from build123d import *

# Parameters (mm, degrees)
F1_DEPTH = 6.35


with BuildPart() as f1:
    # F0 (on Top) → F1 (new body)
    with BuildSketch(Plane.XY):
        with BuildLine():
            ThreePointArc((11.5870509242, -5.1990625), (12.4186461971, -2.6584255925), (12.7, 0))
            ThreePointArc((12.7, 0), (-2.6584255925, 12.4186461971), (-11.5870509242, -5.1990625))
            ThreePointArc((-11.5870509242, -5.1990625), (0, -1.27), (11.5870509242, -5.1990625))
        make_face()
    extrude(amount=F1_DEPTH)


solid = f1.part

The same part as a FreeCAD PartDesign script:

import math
import FreeCAD as App
import Part
import Sketcher
from FreeCAD import Vector
Q = App.Units.Quantity

doc = App.newDocument("Part")
params = doc.addObject("Spreadsheet::Sheet", "Params")
for row, (alias, value) in enumerate([
    ("sketch1_radius", "0.5 in"),
    ("sketch1_radius2", "0.75 in"),
    ("pad1_length", "0.25 in"),
], start=1):
    params.set(f"A{row}", alias)
    params.set(f"B{row}", "=" + value)
    params.setAlias(f"B{row}", alias)

body = doc.addObject("PartDesign::Body", "Body")

sketch1 = body.newObject("Sketcher::SketchObject", "Sketch")
sketch1.AttachmentSupport = (doc.getObject("XY_Plane"), [""])
sketch1.MapMode = "FlatFace"
sketch1.addGeometry(Part.ArcOfCircle(Part.Circle(Vector(0, 0, 0), Vector(0, 0, 1), 13), math.radians(-24), math.radians(0)), False)
sketch1.addGeometry(Part.ArcOfCircle(Part.Circle(Vector(0, 0, 0), Vector(0, 0, 1), 13), math.radians(0), math.radians(204)), False)
sketch1.addGeometry(Part.ArcOfCircle(Part.Circle(Vector(0, -20, 0), Vector(0, 0, 1), 19), math.radians(53), math.radians(127)), False)
sketch1.addConstraint(Sketcher.Constraint("Tangent", 0, 2, 1, 1))
sketch1.addConstraint(Sketcher.Constraint("Coincident", 1, 2, 2, 2))
sketch1.addConstraint(Sketcher.Constraint("Coincident", 2, 1, 0, 1))
sketch1.addConstraint(Sketcher.Constraint("Coincident", 0, 3, -1, 1))
sketch1.addConstraint(Sketcher.Constraint("Equal", 0, 1))
sketch1.addConstraint(Sketcher.Constraint("PointOnObject", 2, 3, -2))
sketch1.addConstraint(Sketcher.Constraint("PointOnObject", 0, 2, -1))
sketch1.addConstraint(Sketcher.Constraint("Radius", 0, Q("0.5 in")))
sketch1.addConstraint(Sketcher.Constraint("Radius", 2, Q("0.75 in")))
sketch1.addConstraint(Sketcher.Constraint("DistanceY", 2, 3, -1, 1, Q("0.8 in")))
sketch1.setExpression("Constraints[7]", "Params.sketch1_radius")
sketch1.setExpression("Constraints[8]", "Params.sketch1_radius2")
pad1 = body.newObject("PartDesign::Pad", "Pad")
pad1.Profile = sketch1
pad1.setExpression("Length", "Params.pad1_length")

doc.recompute()
